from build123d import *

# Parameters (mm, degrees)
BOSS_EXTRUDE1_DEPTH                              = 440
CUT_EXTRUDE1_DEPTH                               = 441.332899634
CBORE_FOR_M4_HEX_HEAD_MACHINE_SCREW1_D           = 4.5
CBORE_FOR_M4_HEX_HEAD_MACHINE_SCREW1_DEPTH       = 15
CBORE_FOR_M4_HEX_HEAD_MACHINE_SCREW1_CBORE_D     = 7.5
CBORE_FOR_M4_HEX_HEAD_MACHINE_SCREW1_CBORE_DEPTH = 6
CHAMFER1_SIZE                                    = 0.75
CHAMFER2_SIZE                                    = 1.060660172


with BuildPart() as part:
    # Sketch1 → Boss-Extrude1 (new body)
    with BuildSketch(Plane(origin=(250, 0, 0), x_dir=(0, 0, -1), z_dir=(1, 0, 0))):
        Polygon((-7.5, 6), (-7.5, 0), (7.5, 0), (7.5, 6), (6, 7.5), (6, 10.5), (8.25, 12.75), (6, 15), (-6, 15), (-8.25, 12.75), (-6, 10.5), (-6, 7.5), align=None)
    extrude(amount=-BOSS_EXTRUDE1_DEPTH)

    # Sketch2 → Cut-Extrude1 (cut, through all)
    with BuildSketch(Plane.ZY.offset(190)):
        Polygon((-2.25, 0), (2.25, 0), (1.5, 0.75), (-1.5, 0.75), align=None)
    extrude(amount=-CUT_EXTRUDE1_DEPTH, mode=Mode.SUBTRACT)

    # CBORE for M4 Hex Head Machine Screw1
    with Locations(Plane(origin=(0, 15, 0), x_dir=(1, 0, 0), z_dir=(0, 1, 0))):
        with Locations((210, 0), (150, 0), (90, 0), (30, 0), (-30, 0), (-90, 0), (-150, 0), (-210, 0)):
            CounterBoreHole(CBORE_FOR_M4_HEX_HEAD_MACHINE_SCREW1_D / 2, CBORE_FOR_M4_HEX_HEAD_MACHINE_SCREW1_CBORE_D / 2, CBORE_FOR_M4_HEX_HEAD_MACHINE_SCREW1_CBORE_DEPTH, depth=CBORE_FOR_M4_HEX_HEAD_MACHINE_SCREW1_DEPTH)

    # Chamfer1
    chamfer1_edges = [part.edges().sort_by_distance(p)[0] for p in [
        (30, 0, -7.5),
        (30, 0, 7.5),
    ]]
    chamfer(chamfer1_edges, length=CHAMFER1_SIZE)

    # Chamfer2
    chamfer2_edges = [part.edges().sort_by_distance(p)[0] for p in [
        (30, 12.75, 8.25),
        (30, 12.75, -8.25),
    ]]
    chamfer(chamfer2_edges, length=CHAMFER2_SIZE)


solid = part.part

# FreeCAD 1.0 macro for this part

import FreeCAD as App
import Part
import Sketcher
from FreeCAD import Vector
Q = App.Units.Quantity


def edges_at(feature, points):
    """Names of the edges that pass closest to the given points."""
    edges = feature.Shape.Edges
    near = lambda p: min(range(len(edges)), key=lambda i: edges[i].distToShape(Part.Vertex(*p))[0])
    return sorted({f"Edge{near(p) + 1}" for p in points})


def add_polygon(sketch, points):
    """Adds a closed chain of lines whose ends are joined by coincident constraints."""
    first, n = sketch.GeometryCount, len(points)
    for a, b in zip(points, points[1:] + points[:1]):
        sketch.addGeometry(Part.LineSegment(App.Vector(*a, 0), App.Vector(*b, 0)), False)
    for i in range(n):
        sketch.addConstraint(Sketcher.Constraint("Coincident", first + i, 2, first + (i + 1) % n, 1))

doc = App.newDocument("Part")
body = doc.addObject("PartDesign::Body", "Body")

# Sketch on YZ plane
sketch1 = body.newObject("Sketcher::SketchObject", "Sketch")
sketch1.AttachmentSupport = (doc.getObject("YZ_Plane"), [""])
sketch1.MapMode = "FlatFace"
sketch1.AttachmentOffset = App.Placement(Vector(0, 0, 250), App.Rotation())
add_polygon(sketch1, [(6, 7.5), (0, 7.5), (0, -7.5), (6, -7.5), (7.5, -6), (10.5, -6), (12.8, -8.2), (15, -6), (15, 6), (12.8, 8.2), (10.5, 6), (7.5, 6)])  # lines 0-11
sketch1.addConstraint([
    Sketcher.Constraint("Horizontal", 0),
    Sketcher.Constraint("Vertical", 1),
    Sketcher.Constraint("Horizontal", 2),
    Sketcher.Constraint("Horizontal", 4),
    Sketcher.Constraint("Vertical", 7),
    Sketcher.Constraint("Horizontal", 10),
    Sketcher.Constraint("Symmetric", 0, 2, 1, 2, -1, 1),
    Sketcher.Constraint("Symmetric", 5, 2, 8, 2, -1),
    Sketcher.Constraint("Symmetric", 4, 2, 9, 2, -1),
    Sketcher.Constraint("Perpendicular", 3, 5),
    Sketcher.Constraint("Perpendicular", 5, 6),
    Sketcher.Constraint("Perpendicular", 6, 8),
    Sketcher.Constraint("Perpendicular", 8, 9),
    Sketcher.Constraint("Perpendicular", 9, 11),
    Sketcher.Constraint("Horizontal", 4, 2, 6, 2),
    Sketcher.Constraint("Vertical", 3, 2, 10, 2),
    Sketcher.Constraint("DistanceX", 0, 2, 0, 1, Q("6 mm")),
    Sketcher.Constraint("DistanceX", 4, 1, 4, 2, Q("3 mm")),
    Sketcher.Constraint("DistanceY", 1, 2, 1, 1, Q("15 mm")),
    Sketcher.Constraint("DistanceY", 7, 1, 7, 2, Q("12 mm")),
    Sketcher.Constraint("DistanceX", -1, 1, 6, 2, Q("15 mm")),
])
pad1 = body.newObject("PartDesign::Pad", "Pad")
pad1.Profile = sketch1
pad1.Length = 440
pad1.Reversed = True

# Sketch on YZ plane
sketch2 = body.newObject("Sketcher::SketchObject", "Sketch001")
sketch2.AttachmentSupport = (doc.getObject("YZ_Plane"), [""])
sketch2.MapMode = "FlatFace"
sketch2.AttachmentOffset = App.Placement(Vector(0, 0, -190), App.Rotation())
add_polygon(sketch2, [(0, -2.2), (0, 2.2), (0.8, 1.5), (0.8, -1.5)])  # lines 0-3
sketch2.addConstraint([
    Sketcher.Constraint("Vertical", 0),
    Sketcher.Constraint("Vertical", 2),
    Sketcher.Constraint("Symmetric", 0, 2, 3, 2, -1, 1),
    Sketcher.Constraint("Perpendicular", 1, 3),
    Sketcher.Constraint("Equal", 1, 3),
    Sketcher.Constraint("DistanceY", 2, 2, 2, 1, Q("3 mm")),
    Sketcher.Constraint("DistanceY", 0, 1, 0, 2, Q("4.5 mm")),
])
pocket1 = body.newObject("PartDesign::Pocket", "Pocket")
pocket1.Profile = sketch2
pocket1.Type = "ThroughAll"
pocket1.Reversed = True

# Sketch on XZ plane
sketch3 = body.newObject("Sketcher::SketchObject", "Sketch002")
sketch3.AttachmentSupport = (doc.getObject("XZ_Plane"), [""])
sketch3.MapMode = "FlatFace"
sketch3.AttachmentOffset = App.Placement(Vector(0, 0, -15), App.Rotation())
sketch3.addGeometry([
    Part.Circle(Vector(210, 0, 0), Vector(0, 0, 1), 2.2),  # 0
    Part.Circle(Vector(150, 0, 0), Vector(0, 0, 1), 2.2),  # 1
    Part.Circle(Vector(90, 0, 0), Vector(0, 0, 1), 2.2),  # 2
    Part.Circle(Vector(30, 0, 0), Vector(0, 0, 1), 2.2),  # 3
    Part.Circle(Vector(-30, 0, 0), Vector(0, 0, 1), 2.2),  # 4
    Part.Circle(Vector(-90, 0, 0), Vector(0, 0, 1), 2.2),  # 5
    Part.Circle(Vector(-150, 0, 0), Vector(0, 0, 1), 2.2),  # 6
    Part.Circle(Vector(-210, 0, 0), Vector(0, 0, 1), 2.2),  # 7
], False)
sketch3.addConstraint([
    Sketcher.Constraint("Equal", 0, 1),
    Sketcher.Constraint("Equal", 1, 2),
    Sketcher.Constraint("Equal", 2, 3),
    Sketcher.Constraint("Equal", 3, 4),
    Sketcher.Constraint("Equal", 4, 5),
    Sketcher.Constraint("Equal", 5, 6),
    Sketcher.Constraint("Equal", 6, 7),
    Sketcher.Constraint("Symmetric", 3, 3, 4, 3, -1, 1),
    Sketcher.Constraint("Symmetric", 2, 3, 5, 3, -1, 1),
    Sketcher.Constraint("Symmetric", 1, 3, 6, 3, -1, 1),
    Sketcher.Constraint("Symmetric", 0, 3, 7, 3, -1, 1),
    Sketcher.Constraint("PointOnObject", 0, 3, -1),
    Sketcher.Constraint("PointOnObject", 1, 3, -1),
    Sketcher.Constraint("PointOnObject", 2, 3, -1),
    Sketcher.Constraint("PointOnObject", 3, 3, -1),
    Sketcher.Constraint("Diameter", 0, Q("4.5 mm")),
    Sketcher.Constraint("DistanceX", -1, 1, 0, 3, Q("210 mm")),
    Sketcher.Constraint("DistanceX", -1, 1, 1, 3, Q("150 mm")),
    Sketcher.Constraint("DistanceX", -1, 1, 2, 3, Q("90 mm")),
    Sketcher.Constraint("DistanceX", -1, 1, 3, 3, Q("30 mm")),
])
doc.recompute()
hole = body.newObject("PartDesign::Hole", "Hole")
hole.Profile = sketch3
hole.ThreadType = "None"
hole.Diameter = 4.5
hole.DepthType = "Dimension"
hole.Depth = 15
hole.DrillPoint = "Flat"
hole.HoleCutType = "Counterbore"
hole.HoleCutDiameter = 7.5
hole.HoleCutDepth = 6
hole.Reversed = True
doc.recompute()

chamfer = body.newObject("PartDesign::Chamfer", "Chamfer")
chamfer.Base = (hole, edges_at(hole, [(30, 0, -7.5), (30, 0, 7.5)]))
chamfer.Size = 0.75
doc.recompute()

chamfer2 = body.newObject("PartDesign::Chamfer", "Chamfer001")
chamfer2.Base = (chamfer, edges_at(chamfer, [(30, 12.75, 8.25), (30, 12.75, -8.25)]))
chamfer2.Size = 1.06066

doc.recompute()
